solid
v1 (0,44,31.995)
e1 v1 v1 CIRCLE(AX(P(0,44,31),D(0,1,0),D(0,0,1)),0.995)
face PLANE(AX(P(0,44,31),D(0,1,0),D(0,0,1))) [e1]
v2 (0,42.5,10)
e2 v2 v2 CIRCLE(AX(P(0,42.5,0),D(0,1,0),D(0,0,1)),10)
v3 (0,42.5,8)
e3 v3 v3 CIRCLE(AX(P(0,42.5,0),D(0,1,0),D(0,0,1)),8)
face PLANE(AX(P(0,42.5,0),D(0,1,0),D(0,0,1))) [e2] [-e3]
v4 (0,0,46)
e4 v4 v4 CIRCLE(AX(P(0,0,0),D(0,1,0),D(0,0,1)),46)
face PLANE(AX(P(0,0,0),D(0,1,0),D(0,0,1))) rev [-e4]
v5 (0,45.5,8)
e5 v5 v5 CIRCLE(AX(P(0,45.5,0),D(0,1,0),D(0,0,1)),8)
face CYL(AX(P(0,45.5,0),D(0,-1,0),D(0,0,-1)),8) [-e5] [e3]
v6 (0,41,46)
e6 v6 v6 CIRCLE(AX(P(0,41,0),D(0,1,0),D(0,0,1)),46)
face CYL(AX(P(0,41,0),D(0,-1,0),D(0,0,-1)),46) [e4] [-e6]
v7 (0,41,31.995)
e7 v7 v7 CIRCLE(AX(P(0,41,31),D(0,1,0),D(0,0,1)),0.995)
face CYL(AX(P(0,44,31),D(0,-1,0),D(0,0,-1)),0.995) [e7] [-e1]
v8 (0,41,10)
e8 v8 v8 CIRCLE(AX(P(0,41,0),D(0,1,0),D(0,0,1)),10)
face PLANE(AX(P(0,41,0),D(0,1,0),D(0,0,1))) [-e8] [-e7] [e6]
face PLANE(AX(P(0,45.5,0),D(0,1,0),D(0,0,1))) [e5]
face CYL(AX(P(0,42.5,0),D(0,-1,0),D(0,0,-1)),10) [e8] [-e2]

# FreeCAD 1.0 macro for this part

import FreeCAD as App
import Part
import Sketcher

V = App.Vector
Q = App.Units.Quantity

doc = App.newDocument("Part")
body = doc.addObject("PartDesign::Body", "Body")

sketch1 = doc.addObject("Sketcher::SketchObject", "Sketch")
body.addObject(sketch1)
sketch1.AttachmentSupport = (doc.XZ_Plane, [""])
sketch1.MapMode = "FlatFace"
sketch1.addGeometry(Part.Circle(V(0, 0, 0), V(0, 0, 1), 46), False)
sketch1.addConstraint(Sketcher.Constraint("Coincident", 0, 3, -1, 1))
sketch1.addConstraint(Sketcher.Constraint("Diameter", 0, Q("92 mm")))
pad1 = doc.addObject("PartDesign::Pad", "Pad")
body.addObject(pad1)
pad1.Profile = sketch1
pad1.Length = 41
pad1.Reversed = True

sketch2 = doc.addObject("Sketcher::SketchObject", "Sketch001")
body.addObject(sketch2)
sketch2.AttachmentSupport = (doc.XZ_Plane, [""])
sketch2.MapMode = "FlatFace"
sketch2.AttachmentOffset = App.Placement(V(0, 0, -41), App.Rotation())
sketch2.addGeometry(Part.Circle(V(0, 0, 0), V(0, 0, 1), 10), False)
sketch2.addConstraint(Sketcher.Constraint("Coincident", 0, 3, -1, 1))
sketch2.addConstraint(Sketcher.Constraint("Diameter", 0, Q("20 mm")))
pad2 = doc.addObject("PartDesign::Pad", "Pad001")
body.addObject(pad2)
pad2.Profile = sketch2
pad2.Length = 1.5
pad2.Reversed = True

sketch3 = doc.addObject("Sketcher::SketchObject", "Sketch002")
body.addObject(sketch3)
sketch3.AttachmentSupport = (doc.XZ_Plane, [""])
sketch3.MapMode = "FlatFace"
sketch3.AttachmentOffset = App.Placement(V(0, 0, -42.5), App.Rotation())
sketch3.addGeometry(Part.Circle(V(0, 0, 0), V(0, 0, 1), 8), False)
sketch3.addConstraint(Sketcher.Constraint("Coincident", 0, 3, -1, 1))
sketch3.addConstraint(Sketcher.Constraint("Diameter", 0, Q("16 mm")))
pad3 = doc.addObject("PartDesign::Pad", "Pad002")
body.addObject(pad3)
pad3.Profile = sketch3
pad3.Length = 3
pad3.Reversed = True

sketch4 = doc.addObject("Sketcher::SketchObject", "Sketch003")
body.addObject(sketch4)
sketch4.AttachmentSupport = (doc.XZ_Plane, [""])
sketch4.MapMode = "FlatFace"
sketch4.AttachmentOffset = App.Placement(V(0, 0, -41), App.Rotation())
sketch4.addGeometry(Part.Circle(V(0, 31, 0), V(0, 0, 1), 1), False)
sketch4.addConstraint(Sketcher.Constraint("PointOnObject", 0, 3, -2))
sketch4.addConstraint(Sketcher.Constraint("Diameter", 0, Q("1.99 mm")))
sketch4.addConstraint(Sketcher.Constraint("DistanceY", -1, 1, 0, 3, Q("31 mm")))
pad4 = doc.addObject("PartDesign::Pad", "Pad003")
body.addObject(pad4)
pad4.Profile = sketch4
pad4.Length = 3
pad4.Reversed = True

doc.recompute()
